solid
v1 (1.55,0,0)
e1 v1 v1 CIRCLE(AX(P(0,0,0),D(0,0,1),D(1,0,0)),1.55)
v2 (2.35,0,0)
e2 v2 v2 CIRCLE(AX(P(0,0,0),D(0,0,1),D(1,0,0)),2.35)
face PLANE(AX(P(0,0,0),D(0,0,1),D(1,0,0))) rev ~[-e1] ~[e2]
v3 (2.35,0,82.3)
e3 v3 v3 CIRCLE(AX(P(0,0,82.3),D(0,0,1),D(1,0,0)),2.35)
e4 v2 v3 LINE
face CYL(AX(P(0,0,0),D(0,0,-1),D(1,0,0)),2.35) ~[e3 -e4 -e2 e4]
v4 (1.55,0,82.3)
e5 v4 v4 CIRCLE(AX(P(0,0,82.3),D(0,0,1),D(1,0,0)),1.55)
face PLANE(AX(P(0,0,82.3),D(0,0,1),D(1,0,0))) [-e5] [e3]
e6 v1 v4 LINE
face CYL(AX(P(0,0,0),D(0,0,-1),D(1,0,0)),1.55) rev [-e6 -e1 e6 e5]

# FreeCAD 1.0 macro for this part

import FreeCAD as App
import Part
import Sketcher

V = App.Vector
Q = App.Units.Quantity

doc = App.newDocument("Part")
body = doc.addObject("PartDesign::Body", "Body")

sketch1 = body.newObject("Sketcher::SketchObject", "Sketch")
sketch1.AttachmentSupport = (doc.getObject("XY_Plane"), [""])
sketch1.MapMode = "FlatFace"
sketch1.addGeometry(Part.Circle(V(0, 0, 0), V(0, 0, 1), 2.35), False)
sketch1.addGeometry(Part.Circle(V(0, 0, 0), V(0, 0, 1), 1.55), False)
sketch1.addConstraint(Sketcher.Constraint("Coincident", 0, 3, -1, 1))
sketch1.addConstraint(Sketcher.Constraint("Coincident", 1, 3, -1, 1))
sketch1.addConstraint(Sketcher.Constraint("Diameter", 1, Q("3.1 mm")))
sketch1.addConstraint(Sketcher.Constraint("Diameter", 0, Q("4.7 mm")))
pad1 = body.newObject("PartDesign::Pad", "Pad")
pad1.Profile = sketch1
pad1.Length = 82.3

doc.recompute()
